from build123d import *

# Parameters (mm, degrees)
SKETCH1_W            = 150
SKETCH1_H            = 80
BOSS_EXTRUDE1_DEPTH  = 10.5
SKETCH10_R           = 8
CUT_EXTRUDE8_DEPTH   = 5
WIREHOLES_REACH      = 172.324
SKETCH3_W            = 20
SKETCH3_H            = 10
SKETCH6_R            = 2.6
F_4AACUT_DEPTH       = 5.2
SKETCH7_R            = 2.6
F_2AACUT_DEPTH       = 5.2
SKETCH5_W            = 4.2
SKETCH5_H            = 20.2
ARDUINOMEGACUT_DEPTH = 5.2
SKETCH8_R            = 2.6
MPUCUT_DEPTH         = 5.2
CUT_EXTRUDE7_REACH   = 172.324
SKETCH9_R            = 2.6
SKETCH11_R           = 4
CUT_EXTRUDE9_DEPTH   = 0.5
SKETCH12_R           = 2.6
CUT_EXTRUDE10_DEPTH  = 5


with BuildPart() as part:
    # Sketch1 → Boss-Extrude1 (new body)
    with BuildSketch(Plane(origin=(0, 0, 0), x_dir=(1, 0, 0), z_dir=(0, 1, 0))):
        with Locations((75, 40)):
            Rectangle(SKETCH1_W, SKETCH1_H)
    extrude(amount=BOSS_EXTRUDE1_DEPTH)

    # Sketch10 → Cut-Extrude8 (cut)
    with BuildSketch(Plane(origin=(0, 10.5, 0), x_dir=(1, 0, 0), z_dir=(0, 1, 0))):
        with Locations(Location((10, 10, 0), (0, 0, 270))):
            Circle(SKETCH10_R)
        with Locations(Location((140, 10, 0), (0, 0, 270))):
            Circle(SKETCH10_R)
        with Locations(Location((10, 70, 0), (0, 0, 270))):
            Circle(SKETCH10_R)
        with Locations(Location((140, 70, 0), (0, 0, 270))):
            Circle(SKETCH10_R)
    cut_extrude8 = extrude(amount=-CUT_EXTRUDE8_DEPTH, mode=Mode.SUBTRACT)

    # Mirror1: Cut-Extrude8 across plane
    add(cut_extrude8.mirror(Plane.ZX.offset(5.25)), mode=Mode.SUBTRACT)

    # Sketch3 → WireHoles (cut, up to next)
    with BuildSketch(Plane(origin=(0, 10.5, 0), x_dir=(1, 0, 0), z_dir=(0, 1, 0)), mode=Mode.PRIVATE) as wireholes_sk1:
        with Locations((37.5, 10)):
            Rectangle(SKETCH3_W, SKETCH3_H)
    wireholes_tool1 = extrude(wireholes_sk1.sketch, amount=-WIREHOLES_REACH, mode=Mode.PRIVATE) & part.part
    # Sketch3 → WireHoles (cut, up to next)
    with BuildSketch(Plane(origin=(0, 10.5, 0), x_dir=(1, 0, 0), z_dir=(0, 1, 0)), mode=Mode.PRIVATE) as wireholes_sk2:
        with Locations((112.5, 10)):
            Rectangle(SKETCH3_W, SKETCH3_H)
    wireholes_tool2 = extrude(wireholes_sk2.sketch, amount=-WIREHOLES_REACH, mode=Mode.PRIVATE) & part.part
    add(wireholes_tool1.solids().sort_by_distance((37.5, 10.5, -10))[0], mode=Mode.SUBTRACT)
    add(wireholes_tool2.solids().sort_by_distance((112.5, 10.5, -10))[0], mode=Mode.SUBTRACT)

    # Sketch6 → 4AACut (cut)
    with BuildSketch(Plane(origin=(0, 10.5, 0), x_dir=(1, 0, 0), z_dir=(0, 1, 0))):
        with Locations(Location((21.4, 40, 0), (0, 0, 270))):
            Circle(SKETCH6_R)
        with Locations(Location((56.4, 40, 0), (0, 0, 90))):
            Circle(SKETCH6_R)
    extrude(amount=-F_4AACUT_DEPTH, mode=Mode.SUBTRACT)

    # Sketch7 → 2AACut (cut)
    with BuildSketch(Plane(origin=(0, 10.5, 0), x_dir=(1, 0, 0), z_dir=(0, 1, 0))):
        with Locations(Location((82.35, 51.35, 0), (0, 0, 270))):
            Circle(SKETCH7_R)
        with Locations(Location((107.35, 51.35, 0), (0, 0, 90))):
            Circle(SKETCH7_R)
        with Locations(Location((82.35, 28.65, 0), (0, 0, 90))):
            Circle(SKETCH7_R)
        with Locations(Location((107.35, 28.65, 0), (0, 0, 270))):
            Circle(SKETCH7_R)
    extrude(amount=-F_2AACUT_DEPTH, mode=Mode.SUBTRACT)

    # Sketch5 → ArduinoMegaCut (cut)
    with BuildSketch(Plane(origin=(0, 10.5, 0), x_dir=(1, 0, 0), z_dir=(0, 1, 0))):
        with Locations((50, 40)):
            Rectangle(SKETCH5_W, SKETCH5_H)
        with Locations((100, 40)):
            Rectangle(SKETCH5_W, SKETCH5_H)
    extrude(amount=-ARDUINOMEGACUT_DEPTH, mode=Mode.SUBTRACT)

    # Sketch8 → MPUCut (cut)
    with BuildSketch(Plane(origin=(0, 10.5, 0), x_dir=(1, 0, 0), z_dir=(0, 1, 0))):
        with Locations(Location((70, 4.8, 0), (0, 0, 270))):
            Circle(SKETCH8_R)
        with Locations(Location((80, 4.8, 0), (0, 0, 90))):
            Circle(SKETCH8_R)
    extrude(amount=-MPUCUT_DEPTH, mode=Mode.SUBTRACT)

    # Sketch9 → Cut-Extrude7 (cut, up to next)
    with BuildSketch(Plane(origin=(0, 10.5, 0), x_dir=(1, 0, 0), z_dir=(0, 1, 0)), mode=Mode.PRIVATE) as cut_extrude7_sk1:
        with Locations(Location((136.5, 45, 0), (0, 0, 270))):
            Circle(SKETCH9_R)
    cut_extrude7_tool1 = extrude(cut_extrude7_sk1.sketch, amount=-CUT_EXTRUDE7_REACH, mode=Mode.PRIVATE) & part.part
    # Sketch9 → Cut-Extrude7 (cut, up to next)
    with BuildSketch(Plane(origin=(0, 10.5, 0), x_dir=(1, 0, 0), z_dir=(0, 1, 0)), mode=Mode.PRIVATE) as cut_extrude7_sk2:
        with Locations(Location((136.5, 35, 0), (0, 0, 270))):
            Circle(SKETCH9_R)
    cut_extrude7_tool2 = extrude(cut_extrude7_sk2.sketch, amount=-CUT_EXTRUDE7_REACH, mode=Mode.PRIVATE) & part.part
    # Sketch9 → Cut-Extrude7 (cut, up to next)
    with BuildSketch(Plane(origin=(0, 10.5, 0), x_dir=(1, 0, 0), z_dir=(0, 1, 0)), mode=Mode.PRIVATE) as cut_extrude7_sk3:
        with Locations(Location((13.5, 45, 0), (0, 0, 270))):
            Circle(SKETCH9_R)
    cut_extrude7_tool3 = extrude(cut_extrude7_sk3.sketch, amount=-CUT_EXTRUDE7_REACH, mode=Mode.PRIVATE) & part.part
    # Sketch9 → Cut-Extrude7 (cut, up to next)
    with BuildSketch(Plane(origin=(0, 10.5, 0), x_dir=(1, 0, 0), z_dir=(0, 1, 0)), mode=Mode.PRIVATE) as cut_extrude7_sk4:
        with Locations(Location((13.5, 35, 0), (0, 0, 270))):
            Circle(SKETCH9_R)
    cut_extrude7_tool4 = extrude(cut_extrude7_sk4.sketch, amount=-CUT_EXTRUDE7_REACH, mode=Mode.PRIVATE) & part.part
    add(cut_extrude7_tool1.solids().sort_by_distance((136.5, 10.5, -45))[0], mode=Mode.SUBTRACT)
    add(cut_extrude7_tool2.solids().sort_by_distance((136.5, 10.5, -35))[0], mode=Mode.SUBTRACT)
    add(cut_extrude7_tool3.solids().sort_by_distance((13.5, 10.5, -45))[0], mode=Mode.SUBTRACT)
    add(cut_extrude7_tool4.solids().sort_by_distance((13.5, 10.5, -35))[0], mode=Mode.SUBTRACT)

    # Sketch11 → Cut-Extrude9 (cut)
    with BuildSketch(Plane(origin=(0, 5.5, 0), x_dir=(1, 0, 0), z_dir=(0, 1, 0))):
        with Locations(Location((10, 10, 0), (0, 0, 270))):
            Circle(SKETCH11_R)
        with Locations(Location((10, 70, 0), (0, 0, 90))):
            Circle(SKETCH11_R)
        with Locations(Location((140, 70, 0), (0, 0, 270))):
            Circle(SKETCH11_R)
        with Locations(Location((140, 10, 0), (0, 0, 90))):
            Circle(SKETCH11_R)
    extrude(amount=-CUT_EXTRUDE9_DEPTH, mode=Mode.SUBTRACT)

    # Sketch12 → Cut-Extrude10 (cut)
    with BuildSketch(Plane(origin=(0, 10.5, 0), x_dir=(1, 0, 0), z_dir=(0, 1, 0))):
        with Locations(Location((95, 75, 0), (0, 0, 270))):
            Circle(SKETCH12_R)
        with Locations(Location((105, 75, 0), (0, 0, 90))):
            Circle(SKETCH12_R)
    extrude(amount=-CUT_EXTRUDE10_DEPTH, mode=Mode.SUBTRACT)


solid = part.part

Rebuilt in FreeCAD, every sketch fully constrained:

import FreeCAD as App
import Part
import Sketcher

V = App.Vector

doc = App.newDocument("Part")
body = doc.addObject("PartDesign::Body", "Body")

# Sketch on XZ plane
sketch1 = body.newObject("Sketcher::SketchObject", "Sketch")
sketch1.AttachmentSupport = (doc.getObject("XZ_Plane"), [""])
sketch1.MapMode = "FlatFace"
sketch1.addGeometry(Part.LineSegment(V(0, -80, 0), V(0, 0, 0)), False)
sketch1.addGeometry(Part.LineSegment(V(0, 0, 0), V(150, 0, 0)), False)
sketch1.addGeometry(Part.LineSegment(V(150, 0, 0), V(150, -80, 0)), False)
sketch1.addGeometry(Part.LineSegment(V(150, -80, 0), V(0, -80, 0)), False)
sketch1.addConstraint(Sketcher.Constraint("Coincident", 0, 2, 1, 1))
sketch1.addConstraint(Sketcher.Constraint("Coincident", 1, 2, 2, 1))
sketch1.addConstraint(Sketcher.Constraint("Coincident", 2, 2, 3, 1))
sketch1.addConstraint(Sketcher.Constraint("Coincident", 3, 2, 0, 1))
sketch1.addConstraint(Sketcher.Constraint("Vertical", 0))
sketch1.addConstraint(Sketcher.Constraint("Horizontal", 1))
sketch1.addConstraint(Sketcher.Constraint("Vertical", 2))
sketch1.addConstraint(Sketcher.Constraint("Horizontal", 3))
sketch1.addConstraint(Sketcher.Constraint("Coincident", 0, 2, -1, 1))
sketch1.addConstraint(Sketcher.Constraint("DistanceX", 1, 1, 1, 2, 150.0))
sketch1.addConstraint(Sketcher.Constraint("DistanceY", 0, 1, 0, 2, 80.0))
pad1 = body.newObject("PartDesign::Pad", "Pad")
pad1.Profile = sketch1
pad1.Length = 10.5
pad1.Reversed = True

# Sketch on XZ plane
sketch2 = body.newObject("Sketcher::SketchObject", "Sketch001")
sketch2.AttachmentSupport = (doc.getObject("XZ_Plane"), [""])
sketch2.MapMode = "FlatFace"
sketch2.AttachmentOffset = App.Placement(V(0, 0, -10.5), App.Rotation())
sketch2.addGeometry(Part.Circle(V(10, -10, 0), V(0, 0, 1), 8), False)
sketch2.addGeometry(Part.Circle(V(140, -10, 0), V(0, 0, 1), 8), False)
sketch2.addGeometry(Part.Circle(V(10, -70, 0), V(0, 0, 1), 8), False)
sketch2.addGeometry(Part.Circle(V(140, -70, 0), V(0, 0, 1), 8), False)
sketch2.addConstraint(Sketcher.Constraint("Equal", 0, 1))
sketch2.addConstraint(Sketcher.Constraint("Equal", 1, 2))
sketch2.addConstraint(Sketcher.Constraint("Equal", 2, 3))
sketch2.addConstraint(Sketcher.Constraint("Horizontal", 0, 3, 1, 3))
sketch2.addConstraint(Sketcher.Constraint("Horizontal", 2, 3, 3, 3))
sketch2.addConstraint(Sketcher.Constraint("Vertical", 0, 3, 2, 3))
sketch2.addConstraint(Sketcher.Constraint("Vertical", 1, 3, 3, 3))
sketch2.addConstraint(Sketcher.Constraint("Diameter", 0, 16.0))
sketch2.addConstraint(Sketcher.Constraint("DistanceX", -1, 1, 0, 3, 10.0))
sketch2.addConstraint(Sketcher.Constraint("DistanceY", 0, 3, -1, 1, 10.0))
sketch2.addConstraint(Sketcher.Constraint("DistanceX", -1, 1, 1, 3, 140.0))
sketch2.addConstraint(Sketcher.Constraint("DistanceY", 2, 3, -1, 1, 70.0))
pocket1 = body.newObject("PartDesign::Pocket", "Pocket")
pocket1.Profile = sketch2
pocket1.Length = 5
pocket1.Reversed = True
doc.recompute()

datumplane = body.newObject("PartDesign::Plane", "DatumPlane")
datumplane.AttachmentSupport = (doc.getObject("XZ_Plane"), [""])
datumplane.MapMode = "FlatFace"
datumplane.AttachmentOffset = App.Placement(V(0, 0, -5.25), App.Rotation())
mirrored = body.newObject("PartDesign::Mirrored", "Mirrored")
mirrored.Originals = [pocket1]
mirrored.MirrorPlane = (datumplane, [""])
body.Tip = mirrored

# Sketch on XZ plane
sketch3 = body.newObject("Sketcher::SketchObject", "Sketch002")
sketch3.AttachmentSupport = (doc.getObject("XZ_Plane"), [""])
sketch3.MapMode = "FlatFace"
sketch3.AttachmentOffset = App.Placement(V(0, 0, -10.5), App.Rotation())
sketch3.addGeometry(Part.LineSegment(V(27.5, -15, 0), V(27.5, -5, 0)), False)
sketch3.addGeometry(Part.LineSegment(V(27.5, -5, 0), V(47.5, -5, 0)), False)
sketch3.addGeometry(Part.LineSegment(V(47.5, -5, 0), V(47.5, -15, 0)), False)
sketch3.addGeometry(Part.LineSegment(V(47.5, -15, 0), V(27.5, -15, 0)), False)
sketch3.addConstraint(Sketcher.Constraint("Coincident", 0, 2, 1, 1))
sketch3.addConstraint(Sketcher.Constraint("Coincident", 1, 2, 2, 1))
sketch3.addConstraint(Sketcher.Constraint("Coincident", 2, 2, 3, 1))
sketch3.addConstraint(Sketcher.Constraint("Coincident", 3, 2, 0, 1))
sketch3.addConstraint(Sketcher.Constraint("Vertical", 0))
sketch3.addConstraint(Sketcher.Constraint("Horizontal", 1))
sketch3.addConstraint(Sketcher.Constraint("Vertical", 2))
sketch3.addConstraint(Sketcher.Constraint("Horizontal", 3))
sketch3.addConstraint(Sketcher.Constraint("DistanceX", 1, 1, 1, 2, 20.0))
sketch3.addConstraint(Sketcher.Constraint("DistanceY", 0, 1, 0, 2, 10.0))
sketch3.addConstraint(Sketcher.Constraint("DistanceY", 0, 2, -1, 1, 5.0))
sketch3.addConstraint(Sketcher.Constraint("DistanceX", -1, 1, 0, 2, 27.5))
pocket2 = body.newObject("PartDesign::Pocket", "Pocket001")
pocket2.Profile = sketch3
pocket2.Type = "UpToFirst"
pocket2.Reversed = True

# Sketch on XZ plane
sketch4 = body.newObject("Sketcher::SketchObject", "Sketch003")
sketch4.AttachmentSupport = (doc.getObject("XZ_Plane"), [""])
sketch4.MapMode = "FlatFace"
sketch4.AttachmentOffset = App.Placement(V(0, 0, -10.5), App.Rotation())
sketch4.addGeometry(Part.LineSegment(V(102.5, -15, 0), V(102.5, -5, 0)), False)
sketch4.addGeometry(Part.LineSegment(V(102.5, -5, 0), V(122.5, -5, 0)), False)
sketch4.addGeometry(Part.LineSegment(V(122.5, -5, 0), V(122.5, -15, 0)), False)
sketch4.addGeometry(Part.LineSegment(V(122.5, -15, 0), V(102.5, -15, 0)), False)
sketch4.addConstraint(Sketcher.Constraint("Coincident", 0, 2, 1, 1))
sketch4.addConstraint(Sketcher.Constraint("Coincident", 1, 2, 2, 1))
sketch4.addConstraint(Sketcher.Constraint("Coincident", 2, 2, 3, 1))
sketch4.addConstraint(Sketcher.Constraint("Coincident", 3, 2, 0, 1))
sketch4.addConstraint(Sketcher.Constraint("Vertical", 0))
sketch4.addConstraint(Sketcher.Constraint("Horizontal", 1))
sketch4.addConstraint(Sketcher.Constraint("Vertical", 2))
sketch4.addConstraint(Sketcher.Constraint("Horizontal", 3))
sketch4.addConstraint(Sketcher.Constraint("DistanceX", 1, 1, 1, 2, 20.0))
sketch4.addConstraint(Sketcher.Constraint("DistanceY", 0, 1, 0, 2, 10.0))
sketch4.addConstraint(Sketcher.Constraint("DistanceY", 0, 2, -1, 1, 5.0))
sketch4.addConstraint(Sketcher.Constraint("DistanceX", -1, 1, 0, 2, 102.5))
pocket3 = body.newObject("PartDesign::Pocket", "Pocket002")
pocket3.Profile = sketch4
pocket3.Type = "UpToFirst"
pocket3.Reversed = True

# Sketch on XZ plane
sketch5 = body.newObject("Sketcher::SketchObject", "Sketch004")
sketch5.AttachmentSupport = (doc.getObject("XZ_Plane"), [""])
sketch5.MapMode = "FlatFace"
sketch5.AttachmentOffset = App.Placement(V(0, 0, -10.5), App.Rotation())
sketch5.addGeometry(Part.Circle(V(21.4, -40, 0), V(0, 0, 1), 2.6), False)
sketch5.addGeometry(Part.Circle(V(56.4, -40, 0), V(0, 0, 1), 2.6), False)
sketch5.addConstraint(Sketcher.Constraint("Equal", 0, 1))
sketch5.addConstraint(Sketcher.Constraint("Horizontal", 0, 3, 1, 3))
sketch5.addConstraint(Sketcher.Constraint("Diameter", 0, 5.2))
sketch5.addConstraint(Sketcher.Constraint("DistanceY", 0, 3, -1, 1, 40.0))
sketch5.addConstraint(Sketcher.Constraint("DistanceX", 0, 3, 1, 3, 35.0))
sketch5.addConstraint(Sketcher.Constraint("DistanceX", -1, 1, 0, 3, 21.4))
pocket4 = body.newObject("PartDesign::Pocket", "Pocket003")
pocket4.Profile = sketch5
pocket4.Length = 5.2
pocket4.Reversed = True

# Sketch on XZ plane
sketch6 = body.newObject("Sketcher::SketchObject", "Sketch005")
sketch6.AttachmentSupport = (doc.getObject("XZ_Plane"), [""])
sketch6.MapMode = "FlatFace"
sketch6.AttachmentOffset = App.Placement(V(0, 0, -10.5), App.Rotation())
sketch6.addGeometry(Part.Circle(V(82.35, -51.35, 0), V(0, 0, 1), 2.6), False)
sketch6.addGeometry(Part.Circle(V(107.35, -51.35, 0), V(0, 0, 1), 2.6), False)
sketch6.addGeometry(Part.Circle(V(82.35, -28.65, 0), V(0, 0, 1), 2.6), False)
sketch6.addGeometry(Part.Circle(V(107.35, -28.65, 0), V(0, 0, 1), 2.6), False)
sketch6.addConstraint(Sketcher.Constraint("Equal", 0, 1))
sketch6.addConstraint(Sketcher.Constraint("Equal", 1, 2))
sketch6.addConstraint(Sketcher.Constraint("Equal", 2, 3))
sketch6.addConstraint(Sketcher.Constraint("Horizontal", 0, 3, 1, 3))
sketch6.addConstraint(Sketcher.Constraint("Horizontal", 2, 3, 3, 3))
sketch6.addConstraint(Sketcher.Constraint("Vertical", 0, 3, 2, 3))
sketch6.addConstraint(Sketcher.Constraint("Vertical", 1, 3, 3, 3))
sketch6.addConstraint(Sketcher.Constraint("Diameter", 0, 5.2))
sketch6.addConstraint(Sketcher.Constraint("DistanceX", 0, 3, 1, 3, 25.0))
sketch6.addConstraint(Sketcher.Constraint("DistanceY", 0, 3, 2, 3, 22.7))
sketch6.addConstraint(Sketcher.Constraint("DistanceX", -1, 1, 0, 3, 82.35))
sketch6.addConstraint(Sketcher.Constraint("DistanceY", 0, 3, -1, 1, 51.35))
pocket5 = body.newObject("PartDesign::Pocket", "Pocket004")
pocket5.Profile = sketch6
pocket5.Length = 5.2
pocket5.Reversed = True

# Sketch on XZ plane
sketch7 = body.newObject("Sketcher::SketchObject", "Sketch006")
sketch7.AttachmentSupport = (doc.getObject("XZ_Plane"), [""])
sketch7.MapMode = "FlatFace"
sketch7.AttachmentOffset = App.Placement(V(0, 0, -10.5), App.Rotation())
sketch7.addGeometry(Part.LineSegment(V(47.9, -50.1, 0), V(47.9, -29.9, 0)), False)
sketch7.addGeometry(Part.LineSegment(V(47.9, -29.9, 0), V(52.1, -29.9, 0)), False)
sketch7.addGeometry(Part.LineSegment(V(52.1, -29.9, 0), V(52.1, -50.1, 0)), False)
sketch7.addGeometry(Part.LineSegment(V(52.1, -50.1, 0), V(47.9, -50.1, 0)), False)
sketch7.addGeometry(Part.LineSegment(V(97.9, -50.1, 0), V(97.9, -29.9, 0)), False)
sketch7.addGeometry(Part.LineSegment(V(97.9, -29.9, 0), V(102.1, -29.9, 0)), False)
sketch7.addGeometry(Part.LineSegment(V(102.1, -29.9, 0), V(102.1, -50.1, 0)), False)
sketch7.addGeometry(Part.LineSegment(V(102.1, -50.1, 0), V(97.9, -50.1, 0)), False)
sketch7.addConstraint(Sketcher.Constraint("Coincident", 0, 2, 1, 1))
sketch7.addConstraint(Sketcher.Constraint("Coincident", 1, 2, 2, 1))
sketch7.addConstraint(Sketcher.Constraint("Coincident", 2, 2, 3, 1))
sketch7.addConstraint(Sketcher.Constraint("Coincident", 3, 2, 0, 1))
sketch7.addConstraint(Sketcher.Constraint("Coincident", 4, 2, 5, 1))
sketch7.addConstraint(Sketcher.Constraint("Coincident", 5, 2, 6, 1))
sketch7.addConstraint(Sketcher.Constraint("Coincident", 6, 2, 7, 1))
sketch7.addConstraint(Sketcher.Constraint("Coincident", 7, 2, 4, 1))
sketch7.addConstraint(Sketcher.Constraint("Vertical", 0))
sketch7.addConstraint(Sketcher.Constraint("Horizontal", 1))
sketch7.addConstraint(Sketcher.Constraint("Vertical", 2))
sketch7.addConstraint(Sketcher.Constraint("Horizontal", 3))
sketch7.addConstraint(Sketcher.Constraint("Vertical", 4))
sketch7.addConstraint(Sketcher.Constraint("Horizontal", 5))
sketch7.addConstraint(Sketcher.Constraint("Vertical", 6))
sketch7.addConstraint(Sketcher.Constraint("Horizontal", 7))
sketch7.addConstraint(Sketcher.Constraint("Horizontal", 1, 2, 4, 2))
sketch7.addConstraint(Sketcher.Constraint("Horizontal", 3, 2, 6, 2))
sketch7.addConstraint(Sketcher.Constraint("Equal", 3, 5))
sketch7.addConstraint(Sketcher.Constraint("DistanceX", 1, 1, 1, 2, 4.2))
sketch7.addConstraint(Sketcher.Constraint("DistanceY", 0, 1, 0, 2, 20.2))
sketch7.addConstraint(Sketcher.Constraint("DistanceX", 0, 2, 4, 2, 50.0))
sketch7.addConstraint(Sketcher.Constraint("DistanceX", -1, 1, 0, 2, 47.9))
sketch7.addConstraint(Sketcher.Constraint("DistanceY", 0, 2, -1, 1, 29.9))
pocket6 = body.newObject("PartDesign::Pocket", "Pocket005")
pocket6.Profile = sketch7
pocket6.Length = 5.2
pocket6.Reversed = True

# Sketch on XZ plane
sketch8 = body.newObject("Sketcher::SketchObject", "Sketch007")
sketch8.AttachmentSupport = (doc.getObject("XZ_Plane"), [""])
sketch8.MapMode = "FlatFace"
sketch8.AttachmentOffset = App.Placement(V(0, 0, -10.5), App.Rotation())
sketch8.addGeometry(Part.Circle(V(70, -4.8, 0), V(0, 0, 1), 2.6), False)
sketch8.addGeometry(Part.Circle(V(80, -4.8, 0), V(0, 0, 1), 2.6), False)
sketch8.addConstraint(Sketcher.Constraint("Equal", 0, 1))
sketch8.addConstraint(Sketcher.Constraint("Horizontal", 0, 3, 1, 3))
sketch8.addConstraint(Sketcher.Constraint("Diameter", 0, 5.2))
sketch8.addConstraint(Sketcher.Constraint("DistanceX", -1, 1, 0, 3, 70.0))
sketch8.addConstraint(Sketcher.Constraint("DistanceX", -1, 1, 1, 3, 80.0))
sketch8.addConstraint(Sketcher.Constraint("DistanceY", 0, 3, -1, 1, 4.8))
pocket7 = body.newObject("PartDesign::Pocket", "Pocket006")
pocket7.Profile = sketch8
pocket7.Length = 5.2
pocket7.Reversed = True

# Sketch on XZ plane
sketch9 = body.newObject("Sketcher::SketchObject", "Sketch008")
sketch9.AttachmentSupport = (doc.getObject("XZ_Plane"), [""])
sketch9.MapMode = "FlatFace"
sketch9.AttachmentOffset = App.Placement(V(0, 0, -10.5), App.Rotation())
sketch9.addGeometry(Part.Circle(V(136.5, -45, 0), V(0, 0, 1), 2.6), False)
sketch9.addConstraint(Sketcher.Constraint("Diameter", 0, 5.2))
sketch9.addConstraint(Sketcher.Constraint("DistanceY", 0, 3, -1, 1, 45.0))
sketch9.addConstraint(Sketcher.Constraint("DistanceX", -1, 1, 0, 3, 136.5))
pocket8 = body.newObject("PartDesign::Pocket", "Pocket007")
pocket8.Profile = sketch9
pocket8.Type = "UpToFirst"
pocket8.Reversed = True

# Sketch on XZ plane
sketch10 = body.newObject("Sketcher::SketchObject", "Sketch009")
sketch10.AttachmentSupport = (doc.getObject("XZ_Plane"), [""])
sketch10.MapMode = "FlatFace"
sketch10.AttachmentOffset = App.Placement(V(0, 0, -10.5), App.Rotation())
sketch10.addGeometry(Part.Circle(V(136.5, -35, 0), V(0, 0, 1), 2.6), False)
sketch10.addConstraint(Sketcher.Constraint("Diameter", 0, 5.2))
sketch10.addConstraint(Sketcher.Constraint("DistanceY", 0, 3, -1, 1, 35.0))
sketch10.addConstraint(Sketcher.Constraint("DistanceX", -1, 1, 0, 3, 136.5))
pocket9 = body.newObject("PartDesign::Pocket", "Pocket008")
pocket9.Profile = sketch10
pocket9.Type = "UpToFirst"
pocket9.Reversed = True

# Sketch on XZ plane
sketch11 = body.newObject("Sketcher::SketchObject", "Sketch010")
sketch11.AttachmentSupport = (doc.getObject("XZ_Plane"), [""])
sketch11.MapMode = "FlatFace"
sketch11.AttachmentOffset = App.Placement(V(0, 0, -10.5), App.Rotation())
sketch11.addGeometry(Part.Circle(V(13.5, -45, 0), V(0, 0, 1), 2.6), False)
sketch11.addConstraint(Sketcher.Constraint("Diameter", 0, 5.2))
sketch11.addConstraint(Sketcher.Constraint("DistanceY", 0, 3, -1, 1, 45.0))
sketch11.addConstraint(Sketcher.Constraint("DistanceX", -1, 1, 0, 3, 13.5))
pocket10 = body.newObject("PartDesign::Pocket", "Pocket009")
pocket10.Profile = sketch11
pocket10.Type = "UpToFirst"
pocket10.Reversed = True

# Sketch on XZ plane
sketch12 = body.newObject("Sketcher::SketchObject", "Sketch011")
sketch12.AttachmentSupport = (doc.getObject("XZ_Plane"), [""])
sketch12.MapMode = "FlatFace"
sketch12.AttachmentOffset = App.Placement(V(0, 0, -10.5), App.Rotation())
sketch12.addGeometry(Part.Circle(V(13.5, -35, 0), V(0, 0, 1), 2.6), False)
sketch12.addConstraint(Sketcher.Constraint("Diameter", 0, 5.2))
sketch12.addConstraint(Sketcher.Constraint("DistanceY", 0, 3, -1, 1, 35.0))
sketch12.addConstraint(Sketcher.Constraint("DistanceX", -1, 1, 0, 3, 13.5))
pocket11 = body.newObject("PartDesign::Pocket", "Pocket010")
pocket11.Profile = sketch12
pocket11.Type = "UpToFirst"
pocket11.Reversed = True

# Sketch on XZ plane
sketch13 = body.newObject("Sketcher::SketchObject", "Sketch012")
sketch13.AttachmentSupport = (doc.getObject("XZ_Plane"), [""])
sketch13.MapMode = "FlatFace"
sketch13.AttachmentOffset = App.Placement(V(0, 0, -5.5), App.Rotation())
sketch13.addGeometry(Part.Circle(V(10, -10, 0), V(0, 0, 1), 4), False)
sketch13.addGeometry(Part.Circle(V(10, -70, 0), V(0, 0, 1), 4), False)
sketch13.addGeometry(Part.Circle(V(140, -70, 0), V(0, 0, 1), 4), False)
sketch13.addGeometry(Part.Circle(V(140, -10, 0), V(0, 0, 1), 4), False)
sketch13.addConstraint(Sketcher.Constraint("Equal", 0, 1))
sketch13.addConstraint(Sketcher.Constraint("Equal", 1, 2))
sketch13.addConstraint(Sketcher.Constraint("Equal", 2, 3))
sketch13.addConstraint(Sketcher.Constraint("Horizontal", 1, 3, 2, 3))
sketch13.addConstraint(Sketcher.Constraint("Horizontal", 0, 3, 3, 3))
sketch13.addConstraint(Sketcher.Constraint("Vertical", 0, 3, 1, 3))
sketch13.addConstraint(Sketcher.Constraint("Vertical", 2, 3, 3, 3))
sketch13.addConstraint(Sketcher.Constraint("Diameter", 0, 8.0))
sketch13.addConstraint(Sketcher.Constraint("DistanceX", -1, 1, 0, 3, 10.0))
sketch13.addConstraint(Sketcher.Constraint("DistanceY", 0, 3, -1, 1, 10.0))
sketch13.addConstraint(Sketcher.Constraint("DistanceY", 1, 3, -1, 1, 70.0))
sketch13.addConstraint(Sketcher.Constraint("DistanceX", -1, 1, 2, 3, 140.0))
pocket12 = body.newObject("PartDesign::Pocket", "Pocket011")
pocket12.Profile = sketch13
pocket12.Length = 0.5
pocket12.Reversed = True

# Sketch on XZ plane
sketch14 = body.newObject("Sketcher::SketchObject", "Sketch013")
sketch14.AttachmentSupport = (doc.getObject("XZ_Plane"), [""])
sketch14.MapMode = "FlatFace"
sketch14.AttachmentOffset = App.Placement(V(0, 0, -10.5), App.Rotation())
sketch14.addGeometry(Part.Circle(V(95, -75, 0), V(0, 0, 1), 2.6), False)
sketch14.addGeometry(Part.Circle(V(105, -75, 0), V(0, 0, 1), 2.6), False)
sketch14.addConstraint(Sketcher.Constraint("Equal", 0, 1))
sketch14.addConstraint(Sketcher.Constraint("Horizontal", 0, 3, 1, 3))
sketch14.addConstraint(Sketcher.Constraint("Diameter", 0, 5.2))
sketch14.addConstraint(Sketcher.Constraint("DistanceX", -1, 1, 0, 3, 95.0))
sketch14.addConstraint(Sketcher.Constraint("DistanceY", 0, 3, -1, 1, 75.0))
sketch14.addConstraint(Sketcher.Constraint("DistanceX", -1, 1, 1, 3, 105.0))
pocket13 = body.newObject("PartDesign::Pocket", "Pocket012")
pocket13.Profile = sketch14
pocket13.Length = 5
pocket13.Reversed = True

doc.recompute()
